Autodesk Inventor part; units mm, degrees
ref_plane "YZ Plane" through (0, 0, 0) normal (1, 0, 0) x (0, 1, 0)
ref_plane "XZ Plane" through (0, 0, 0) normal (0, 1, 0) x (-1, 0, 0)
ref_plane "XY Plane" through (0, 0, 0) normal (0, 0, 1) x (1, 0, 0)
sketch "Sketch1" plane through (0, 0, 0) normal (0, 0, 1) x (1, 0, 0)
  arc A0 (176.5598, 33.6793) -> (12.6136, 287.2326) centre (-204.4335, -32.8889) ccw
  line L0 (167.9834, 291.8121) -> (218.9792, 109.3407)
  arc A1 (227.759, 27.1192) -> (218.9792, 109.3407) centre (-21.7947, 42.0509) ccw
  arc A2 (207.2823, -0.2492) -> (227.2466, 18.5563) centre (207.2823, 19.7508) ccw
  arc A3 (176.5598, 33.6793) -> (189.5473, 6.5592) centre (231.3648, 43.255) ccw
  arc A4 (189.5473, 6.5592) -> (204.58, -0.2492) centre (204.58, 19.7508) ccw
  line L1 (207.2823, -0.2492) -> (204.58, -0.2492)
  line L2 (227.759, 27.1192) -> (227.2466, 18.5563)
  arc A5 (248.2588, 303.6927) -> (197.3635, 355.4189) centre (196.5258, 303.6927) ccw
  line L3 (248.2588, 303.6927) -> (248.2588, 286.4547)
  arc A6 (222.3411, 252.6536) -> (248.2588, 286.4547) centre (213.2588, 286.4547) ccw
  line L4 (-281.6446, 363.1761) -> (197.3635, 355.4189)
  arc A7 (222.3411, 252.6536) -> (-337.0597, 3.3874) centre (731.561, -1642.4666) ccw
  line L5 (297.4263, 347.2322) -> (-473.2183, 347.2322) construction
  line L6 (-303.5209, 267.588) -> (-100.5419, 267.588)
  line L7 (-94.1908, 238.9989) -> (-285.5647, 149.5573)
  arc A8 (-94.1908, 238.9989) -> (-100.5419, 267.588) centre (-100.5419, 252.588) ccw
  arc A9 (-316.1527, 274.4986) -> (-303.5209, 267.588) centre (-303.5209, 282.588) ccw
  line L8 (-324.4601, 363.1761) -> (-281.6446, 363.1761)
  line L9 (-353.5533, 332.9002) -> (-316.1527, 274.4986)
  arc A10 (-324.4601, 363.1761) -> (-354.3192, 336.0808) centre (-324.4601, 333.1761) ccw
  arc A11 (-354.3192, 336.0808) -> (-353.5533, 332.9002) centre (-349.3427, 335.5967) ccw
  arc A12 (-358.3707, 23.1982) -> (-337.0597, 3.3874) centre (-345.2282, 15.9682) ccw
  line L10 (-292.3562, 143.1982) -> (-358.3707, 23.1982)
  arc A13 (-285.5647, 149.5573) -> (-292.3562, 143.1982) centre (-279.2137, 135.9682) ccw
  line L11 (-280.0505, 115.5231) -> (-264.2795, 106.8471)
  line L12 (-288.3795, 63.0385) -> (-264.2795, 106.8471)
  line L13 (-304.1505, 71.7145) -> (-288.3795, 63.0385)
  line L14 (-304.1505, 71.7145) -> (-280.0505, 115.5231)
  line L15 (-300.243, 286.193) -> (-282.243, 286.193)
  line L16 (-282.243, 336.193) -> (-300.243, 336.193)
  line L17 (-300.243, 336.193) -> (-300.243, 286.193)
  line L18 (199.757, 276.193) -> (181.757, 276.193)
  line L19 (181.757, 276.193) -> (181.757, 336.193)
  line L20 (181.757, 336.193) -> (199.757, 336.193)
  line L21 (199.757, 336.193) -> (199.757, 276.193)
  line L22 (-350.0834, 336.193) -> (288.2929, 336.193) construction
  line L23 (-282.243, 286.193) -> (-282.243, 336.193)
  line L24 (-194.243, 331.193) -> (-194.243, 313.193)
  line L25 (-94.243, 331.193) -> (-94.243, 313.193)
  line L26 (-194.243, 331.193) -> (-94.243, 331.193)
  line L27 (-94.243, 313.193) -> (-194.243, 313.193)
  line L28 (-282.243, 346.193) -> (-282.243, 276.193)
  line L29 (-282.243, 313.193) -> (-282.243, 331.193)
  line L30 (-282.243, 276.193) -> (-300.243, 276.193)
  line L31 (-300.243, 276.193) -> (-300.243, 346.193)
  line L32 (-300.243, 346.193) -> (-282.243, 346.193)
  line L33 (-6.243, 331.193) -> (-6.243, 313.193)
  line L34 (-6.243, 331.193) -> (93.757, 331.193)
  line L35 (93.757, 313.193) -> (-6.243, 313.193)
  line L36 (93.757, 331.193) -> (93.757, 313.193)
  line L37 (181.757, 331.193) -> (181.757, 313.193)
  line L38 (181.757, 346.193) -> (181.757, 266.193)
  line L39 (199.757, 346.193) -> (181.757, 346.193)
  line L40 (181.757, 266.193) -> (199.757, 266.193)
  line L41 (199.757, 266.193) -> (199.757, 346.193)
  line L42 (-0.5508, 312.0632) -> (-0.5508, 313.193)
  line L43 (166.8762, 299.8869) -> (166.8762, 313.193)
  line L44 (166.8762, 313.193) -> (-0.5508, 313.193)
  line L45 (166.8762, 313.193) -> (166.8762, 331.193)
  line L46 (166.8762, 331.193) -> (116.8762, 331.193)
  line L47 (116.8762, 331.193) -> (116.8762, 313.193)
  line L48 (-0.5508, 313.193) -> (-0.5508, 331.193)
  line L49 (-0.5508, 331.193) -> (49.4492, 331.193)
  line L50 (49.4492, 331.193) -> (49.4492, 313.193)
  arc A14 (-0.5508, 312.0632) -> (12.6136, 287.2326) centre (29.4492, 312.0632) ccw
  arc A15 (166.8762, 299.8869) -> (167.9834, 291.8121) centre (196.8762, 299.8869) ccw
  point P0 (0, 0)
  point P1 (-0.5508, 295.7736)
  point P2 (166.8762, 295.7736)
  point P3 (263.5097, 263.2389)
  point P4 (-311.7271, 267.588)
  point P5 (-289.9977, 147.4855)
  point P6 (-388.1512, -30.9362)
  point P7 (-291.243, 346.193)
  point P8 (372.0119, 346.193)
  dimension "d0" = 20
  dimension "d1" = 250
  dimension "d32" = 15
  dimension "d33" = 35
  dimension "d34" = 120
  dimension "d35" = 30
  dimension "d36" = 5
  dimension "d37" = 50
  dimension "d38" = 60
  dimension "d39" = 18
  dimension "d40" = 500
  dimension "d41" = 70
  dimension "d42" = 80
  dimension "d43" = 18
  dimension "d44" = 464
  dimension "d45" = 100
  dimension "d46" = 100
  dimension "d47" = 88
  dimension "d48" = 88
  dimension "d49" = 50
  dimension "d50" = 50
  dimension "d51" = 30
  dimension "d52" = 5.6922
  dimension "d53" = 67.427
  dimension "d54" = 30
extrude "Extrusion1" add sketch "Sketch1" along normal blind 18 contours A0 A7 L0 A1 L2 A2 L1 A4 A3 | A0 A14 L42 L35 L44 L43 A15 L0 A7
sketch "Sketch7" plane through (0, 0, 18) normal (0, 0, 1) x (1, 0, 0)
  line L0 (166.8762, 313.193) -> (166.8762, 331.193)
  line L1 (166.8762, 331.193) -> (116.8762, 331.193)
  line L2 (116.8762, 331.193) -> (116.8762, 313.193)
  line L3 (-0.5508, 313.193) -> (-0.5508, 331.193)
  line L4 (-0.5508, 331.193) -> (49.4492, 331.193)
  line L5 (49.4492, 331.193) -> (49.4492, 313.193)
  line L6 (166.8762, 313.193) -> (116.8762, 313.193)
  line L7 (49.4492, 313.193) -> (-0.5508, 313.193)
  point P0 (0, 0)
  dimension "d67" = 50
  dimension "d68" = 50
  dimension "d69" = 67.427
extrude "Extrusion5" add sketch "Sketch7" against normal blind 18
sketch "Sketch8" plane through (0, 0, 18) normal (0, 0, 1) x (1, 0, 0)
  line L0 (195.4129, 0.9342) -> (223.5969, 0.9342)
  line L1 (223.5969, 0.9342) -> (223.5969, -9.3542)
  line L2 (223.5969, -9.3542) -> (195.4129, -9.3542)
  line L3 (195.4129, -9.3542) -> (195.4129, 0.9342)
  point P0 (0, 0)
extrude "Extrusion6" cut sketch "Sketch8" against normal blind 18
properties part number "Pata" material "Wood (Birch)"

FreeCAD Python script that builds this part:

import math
import FreeCAD as App
import Part
import Sketcher

V = App.Vector
Q = App.Units.Quantity

doc = App.newDocument("Part")
params = doc.addObject("Spreadsheet::Sheet", "Params")
for row, (alias, value) in enumerate([
    ("sketch1_radius", "20 mm"),
    ("sketch1_radius2", "30 mm"),
    ("pad1_length", "18 mm"),
    ("sketch2_width", "50 mm"),
    ("sketch2_height", "18 mm"),
    ("pad2_length", "18 mm"),
    ("pocket1_length", "18 mm"),
], start=1):
    params.set(f"A{row}", alias)
    params.set(f"B{row}", "=" + value)
    params.setAlias(f"B{row}", alias)

body = doc.addObject("PartDesign::Body", "Body")

sketch1 = body.newObject("Sketcher::SketchObject", "Sketch")
sketch1.AttachmentSupport = (doc.getObject("XY_Plane"), [""])
sketch1.MapMode = "FlatFace"
sketch1.addGeometry(Part.ArcOfCircle(Part.Circle(V(231.4, 43.3, 0), V(0, 0, 1), 55.6), math.radians(-170), math.radians(-139)), False)
sketch1.addGeometry(Part.ArcOfCircle(Part.Circle(V(204.6, 19.8, 0), V(0, 0, 1), 20), math.radians(-139), math.radians(-90)), False)
sketch1.addGeometry(Part.LineSegment(V(204.6, -0.2, 0), V(207.3, -0.2, 0)), False)
sketch1.addGeometry(Part.ArcOfCircle(Part.Circle(V(207.3, 19.8, 0), V(0, 0, 1), 20), math.radians(-90), math.radians(-3)), False)
sketch1.addGeometry(Part.LineSegment(V(227.2, 18.6, 0), V(227.8, 27.1, 0)), False)
sketch1.addGeometry(Part.ArcOfCircle(Part.Circle(V(-21.8, 42.1, 0), V(0, 0, 1), 250), math.radians(-3.42), math.radians(15.61)), False)
sketch1.addGeometry(Part.LineSegment(V(219, 109.3, 0), V(168, 291.8, 0)), False)
sketch1.addGeometry(Part.ArcOfCircle(Part.Circle(V(196.9, 299.9, 0), V(0, 0, 1), 30), math.radians(180), math.radians(195.62)), False)
sketch1.addGeometry(Part.LineSegment(V(166.9, 299.9, 0), V(166.9, 313.2, 0)), False)
sketch1.addGeometry(Part.LineSegment(V(166.9, 313.2, 0), V(-0.6, 313.2, 0)), False)
sketch1.addGeometry(Part.LineSegment(V(-0.6, 313.2, 0), V(-0.6, 312.1, 0)), False)
sketch1.addGeometry(Part.ArcOfCircle(Part.Circle(V(29.4, 312.1, 0), V(0, 0, 1), 30), math.radians(180), math.radians(236)), False)
sketch1.addGeometry(Part.ArcOfCircle(Part.Circle(V(-204.4, -32.9, 0), V(0, 0, 1), 386.8), math.radians(10), math.radians(56)), False)
sketch1.addConstraint(Sketcher.Constraint("Tangent", 0, 2, 1, 1))
sketch1.addConstraint(Sketcher.Constraint("Tangent", 1, 2, 2, 1))
sketch1.addConstraint(Sketcher.Constraint("Tangent", 2, 2, 3, 1))
sketch1.addConstraint(Sketcher.Constraint("Tangent", 3, 2, 4, 1))
sketch1.addConstraint(Sketcher.Constraint("Tangent", 4, 2, 5, 1))
sketch1.addConstraint(Sketcher.Constraint("Tangent", 5, 2, 6, 1))
sketch1.addConstraint(Sketcher.Constraint("Tangent", 6, 2, 7, 2))
sketch1.addConstraint(Sketcher.Constraint("Tangent", 7, 1, 8, 1))
sketch1.addConstraint(Sketcher.Constraint("Coincident", 8, 2, 9, 1))
sketch1.addConstraint(Sketcher.Constraint("Coincident", 9, 2, 10, 1))
sketch1.addConstraint(Sketcher.Constraint("Tangent", 10, 2, 11, 1))
sketch1.addConstraint(Sketcher.Constraint("Tangent", 11, 2, 12, 2))
sketch1.addConstraint(Sketcher.Constraint("Tangent", 12, 1, 0, 1))
sketch1.addConstraint(Sketcher.Constraint("Horizontal", 2))
sketch1.addConstraint(Sketcher.Constraint("Vertical", 8))
sketch1.addConstraint(Sketcher.Constraint("Horizontal", 9))
sketch1.addConstraint(Sketcher.Constraint("Vertical", 10))
sketch1.addConstraint(Sketcher.Constraint("Equal", 1, 3))
sketch1.addConstraint(Sketcher.Constraint("Radius", 1, Q("20 mm")))
sketch1.addConstraint(Sketcher.Constraint("Radius", 11, Q("30 mm")))
sketch1.addConstraint(Sketcher.Constraint("Radius", 12, Q("386.765 mm")))
sketch1.addConstraint(Sketcher.Constraint("Radius", 0, Q("55.6353 mm")))
sketch1.addConstraint(Sketcher.Constraint("Radius", 5, Q("249.9988 mm")))
sketch1.addConstraint(Sketcher.Constraint("Radius", 7, Q("29.9967 mm")))
sketch1.addConstraint(Sketcher.Constraint("DistanceX", 9, 2, 9, 1, Q("167.427 mm")))
sketch1.addConstraint(Sketcher.Constraint("DistanceY", 8, 1, 8, 2, Q("13.306 mm")))
sketch1.addConstraint(Sketcher.Constraint("DistanceX", -1, 1, 1, 3, Q("204.58 mm")))
sketch1.addConstraint(Sketcher.Constraint("DistanceX", 12, 3, 5, 3, Q("182.64 mm")))
sketch1.addConstraint(Sketcher.Constraint("DistanceY", 3, 3, 5, 2, Q("89.59 mm")))
sketch1.addConstraint(Sketcher.Constraint("DistanceX", 2, 1, 2, 2, Q("2.7023 mm")))
sketch1.addConstraint(Sketcher.Constraint("DistanceY", 10, 2, 10, 1, Q("1.1298 mm")))
sketch1.addConstraint(Sketcher.Constraint("DistanceY", -1, 1, 0, 3, Q("43.255 mm")))
sketch1.addConstraint(Sketcher.Constraint("DistanceY", -1, 1, 5, 3, Q("42.051 mm")))
sketch1.addConstraint(Sketcher.Constraint("DistanceY", 12, 3, -1, 1, Q("32.889 mm")))
sketch1.addConstraint(Sketcher.Constraint("DistanceX", -1, 1, 4, 2, Q("227.759 mm")))
sketch1.setExpression("Constraints[18]", "Params.sketch1_radius")
sketch1.setExpression("Constraints[19]", "Params.sketch1_radius2")
pad1 = body.newObject("PartDesign::Pad", "Pad")
pad1.Profile = sketch1
pad1.setExpression("Length", "Params.pad1_length")

sketch2 = body.newObject("Sketcher::SketchObject", "Sketch001")
sketch2.AttachmentSupport = (doc.getObject("XY_Plane"), [""])
sketch2.MapMode = "FlatFace"
sketch2.AttachmentOffset = App.Placement(V(0, 0, 18), App.Rotation())
sketch2.addGeometry(Part.LineSegment(V(117, 313, 0), V(167, 313, 0)), False)
sketch2.addGeometry(Part.LineSegment(V(167, 313, 0), V(167, 331, 0)), False)
sketch2.addGeometry(Part.LineSegment(V(167, 331, 0), V(117, 331, 0)), False)
sketch2.addGeometry(Part.LineSegment(V(117, 331, 0), V(117, 313, 0)), False)
sketch2.addGeometry(Part.LineSegment(V(-1, 331, 0), V(-1, 313, 0)), False)
sketch2.addGeometry(Part.LineSegment(V(-1, 313, 0), V(49, 313, 0)), False)
sketch2.addGeometry(Part.LineSegment(V(49, 313, 0), V(49, 331, 0)), False)
sketch2.addGeometry(Part.LineSegment(V(49, 331, 0), V(-1, 331, 0)), False)
sketch2.addConstraint(Sketcher.Constraint("Coincident", 0, 2, 1, 1))
sketch2.addConstraint(Sketcher.Constraint("Coincident", 1, 2, 2, 1))
sketch2.addConstraint(Sketcher.Constraint("Coincident", 2, 2, 3, 1))
sketch2.addConstraint(Sketcher.Constraint("Coincident", 3, 2, 0, 1))
sketch2.addConstraint(Sketcher.Constraint("Coincident", 4, 2, 5, 1))
sketch2.addConstraint(Sketcher.Constraint("Coincident", 5, 2, 6, 1))
sketch2.addConstraint(Sketcher.Constraint("Coincident", 6, 2, 7, 1))
sketch2.addConstraint(Sketcher.Constraint("Coincident", 7, 2, 4, 1))
sketch2.addConstraint(Sketcher.Constraint("Horizontal", 0))
sketch2.addConstraint(Sketcher.Constraint("Vertical", 1))
sketch2.addConstraint(Sketcher.Constraint("Horizontal", 2))
sketch2.addConstraint(Sketcher.Constraint("Vertical", 3))
sketch2.addConstraint(Sketcher.Constraint("Vertical", 4))
sketch2.addConstraint(Sketcher.Constraint("Horizontal", 5))
sketch2.addConstraint(Sketcher.Constraint("Vertical", 6))
sketch2.addConstraint(Sketcher.Constraint("Horizontal", 7))
sketch2.addConstraint(Sketcher.Constraint("Horizontal", 3, 2, 4, 2))
sketch2.addConstraint(Sketcher.Constraint("Horizontal", 2, 2, 6, 2))
sketch2.addConstraint(Sketcher.Constraint("Equal", 2, 5))
sketch2.addConstraint(Sketcher.Constraint("DistanceX", 0, 1, 0, 2, Q("50 mm")))
sketch2.addConstraint(Sketcher.Constraint("DistanceY", 1, 1, 1, 2, Q("18 mm")))
sketch2.addConstraint(Sketcher.Constraint("DistanceX", 5, 2, 3, 2, Q("67.427 mm")))
sketch2.addConstraint(Sketcher.Constraint("DistanceY", -1, 1, 0, 2, Q("313.193 mm")))
sketch2.addConstraint(Sketcher.Constraint("DistanceX", -1, 1, 0, 2, Q("166.8762 mm")))
sketch2.setExpression("Constraints[19]", "Params.sketch2_width")
sketch2.setExpression("Constraints[20]", "Params.sketch2_height")
pad2 = body.newObject("PartDesign::Pad", "Pad001")
pad2.Profile = sketch2
pad2.setExpression("Length", "Params.pad2_length")
pad2.Reversed = True

sketch3 = body.newObject("Sketcher::SketchObject", "Sketch002")
sketch3.AttachmentSupport = (doc.getObject("XY_Plane"), [""])
sketch3.MapMode = "FlatFace"
sketch3.AttachmentOffset = App.Placement(V(0, 0, 18), App.Rotation())
sketch3.addGeometry(Part.LineSegment(V(224, 1, 0), V(195, 1, 0)), False)
sketch3.addGeometry(Part.LineSegment(V(195, 1, 0), V(195, -9, 0)), False)
sketch3.addGeometry(Part.LineSegment(V(195, -9, 0), V(224, -9, 0)), False)
sketch3.addGeometry(Part.LineSegment(V(224, -9, 0), V(224, 1, 0)), False)
sketch3.addConstraint(Sketcher.Constraint("Coincident", 0, 2, 1, 1))
sketch3.addConstraint(Sketcher.Constraint("Coincident", 1, 2, 2, 1))
sketch3.addConstraint(Sketcher.Constraint("Coincident", 2, 2, 3, 1))
sketch3.addConstraint(Sketcher.Constraint("Coincident", 3, 2, 0, 1))
sketch3.addConstraint(Sketcher.Constraint("Horizontal", 0))
sketch3.addConstraint(Sketcher.Constraint("Vertical", 1))
sketch3.addConstraint(Sketcher.Constraint("Horizontal", 2))
sketch3.addConstraint(Sketcher.Constraint("Vertical", 3))
sketch3.addConstraint(Sketcher.Constraint("DistanceX", 0, 2, 0, 1, Q("28.184 mm")))
sketch3.addConstraint(Sketcher.Constraint("DistanceY", 1, 2, 1, 1, Q("10.2884 mm")))
sketch3.addConstraint(Sketcher.Constraint("DistanceX", -1, 1, 0, 2, Q("195.413 mm")))
sketch3.addConstraint(Sketcher.Constraint("DistanceY", -1, 1, 0, 2, Q("0.9342 mm")))
pocket1 = body.newObject("PartDesign::Pocket", "Pocket")
pocket1.Profile = sketch3
pocket1.setExpression("Length", "Params.pocket1_length")

doc.recompute()
